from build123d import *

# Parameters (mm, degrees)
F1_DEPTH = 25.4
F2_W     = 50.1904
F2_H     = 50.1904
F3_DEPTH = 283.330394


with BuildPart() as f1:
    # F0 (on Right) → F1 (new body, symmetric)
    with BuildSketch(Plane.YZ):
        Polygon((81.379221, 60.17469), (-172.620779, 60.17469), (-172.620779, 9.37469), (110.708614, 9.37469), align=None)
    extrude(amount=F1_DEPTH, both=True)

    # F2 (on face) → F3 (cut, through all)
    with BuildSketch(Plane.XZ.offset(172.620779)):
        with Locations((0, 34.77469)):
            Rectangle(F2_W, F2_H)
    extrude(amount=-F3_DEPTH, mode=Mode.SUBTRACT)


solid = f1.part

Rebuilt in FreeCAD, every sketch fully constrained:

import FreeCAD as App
import Part
import Sketcher
Q = App.Units.Quantity

doc = App.newDocument("Part")
body = doc.addObject("PartDesign::Body", "Body")

# Sketch on YZ plane
sketch1 = body.newObject("Sketcher::SketchObject", "Sketch")
sketch1.AttachmentSupport = (doc.getObject("YZ_Plane"), [""])
sketch1.MapMode = "FlatFace"
sketch1.addGeometry([
    Part.LineSegment(App.Vector(81, 60, 0), App.Vector(-173, 60, 0)),
    Part.LineSegment(App.Vector(-173, 60, 0), App.Vector(-173, 9, 0)),
    Part.LineSegment(App.Vector(-173, 9, 0), App.Vector(111, 9, 0)),
    Part.LineSegment(App.Vector(111, 9, 0), App.Vector(81, 60, 0)),
], False)
sketch1.addConstraint([
    Sketcher.Constraint("Coincident", 0, 2, 1, 1),
    Sketcher.Constraint("Coincident", 1, 2, 2, 1),
    Sketcher.Constraint("Coincident", 2, 2, 3, 1),
    Sketcher.Constraint("Coincident", 3, 2, 0, 1),
    Sketcher.Constraint("Horizontal", 0),
    Sketcher.Constraint("Vertical", 1),
    Sketcher.Constraint("Horizontal", 2),
    Sketcher.Constraint("DistanceX", 0, 2, 0, 1, Q("10 in")),
    Sketcher.Constraint("DistanceY", 1, 2, 1, 1, Q("2 in")),
    Sketcher.Constraint("Angle", 3, Q("119.999999 deg")),
    Sketcher.Constraint("DistanceX", 0, 2, -1, 1, Q("172.620779 mm")),
    Sketcher.Constraint("DistanceY", -1, 1, 0, 2, Q("60.17469 mm")),
])
pad1 = body.newObject("PartDesign::Pad", "Pad")
pad1.Profile = sketch1
pad1.Length = Q("2 in")
pad1.Midplane = True

# Sketch on XZ plane
sketch2 = body.newObject("Sketcher::SketchObject", "Sketch001")
sketch2.AttachmentSupport = (doc.getObject("XZ_Plane"), [""])
sketch2.MapMode = "FlatFace"
sketch2.AttachmentOffset = App.Placement(App.Vector(0, 0, 172.620779), App.Rotation())
sketch2.addGeometry([
    Part.LineSegment(App.Vector(-25, 60, 0), App.Vector(-25, 10, 0)),
    Part.LineSegment(App.Vector(-25, 10, 0), App.Vector(25, 10, 0)),
    Part.LineSegment(App.Vector(25, 10, 0), App.Vector(25, 60, 0)),
    Part.LineSegment(App.Vector(25, 60, 0), App.Vector(-25, 60, 0)),
], False)
sketch2.addConstraint([
    Sketcher.Constraint("Coincident", 0, 2, 1, 1),
    Sketcher.Constraint("Coincident", 1, 2, 2, 1),
    Sketcher.Constraint("Coincident", 2, 2, 3, 1),
    Sketcher.Constraint("Coincident", 3, 2, 0, 1),
    Sketcher.Constraint("Vertical", 0),
    Sketcher.Constraint("Horizontal", 1),
    Sketcher.Constraint("Vertical", 2),
    Sketcher.Constraint("Horizontal", 3),
    Sketcher.Constraint("Equal", 3, 0),
    Sketcher.Constraint("DistanceX", 1, 1, 1, 2, Q("1.976 in")),
    Sketcher.Constraint("DistanceX", 0, 2, -1, 1, Q("0.988 in")),
    Sketcher.Constraint("DistanceY", -1, 1, 0, 2, Q("9.67949 mm")),
])
pocket1 = body.newObject("PartDesign::Pocket", "Pocket")
pocket1.Profile = sketch2
pocket1.Type = "ThroughAll"

doc.recompute()
